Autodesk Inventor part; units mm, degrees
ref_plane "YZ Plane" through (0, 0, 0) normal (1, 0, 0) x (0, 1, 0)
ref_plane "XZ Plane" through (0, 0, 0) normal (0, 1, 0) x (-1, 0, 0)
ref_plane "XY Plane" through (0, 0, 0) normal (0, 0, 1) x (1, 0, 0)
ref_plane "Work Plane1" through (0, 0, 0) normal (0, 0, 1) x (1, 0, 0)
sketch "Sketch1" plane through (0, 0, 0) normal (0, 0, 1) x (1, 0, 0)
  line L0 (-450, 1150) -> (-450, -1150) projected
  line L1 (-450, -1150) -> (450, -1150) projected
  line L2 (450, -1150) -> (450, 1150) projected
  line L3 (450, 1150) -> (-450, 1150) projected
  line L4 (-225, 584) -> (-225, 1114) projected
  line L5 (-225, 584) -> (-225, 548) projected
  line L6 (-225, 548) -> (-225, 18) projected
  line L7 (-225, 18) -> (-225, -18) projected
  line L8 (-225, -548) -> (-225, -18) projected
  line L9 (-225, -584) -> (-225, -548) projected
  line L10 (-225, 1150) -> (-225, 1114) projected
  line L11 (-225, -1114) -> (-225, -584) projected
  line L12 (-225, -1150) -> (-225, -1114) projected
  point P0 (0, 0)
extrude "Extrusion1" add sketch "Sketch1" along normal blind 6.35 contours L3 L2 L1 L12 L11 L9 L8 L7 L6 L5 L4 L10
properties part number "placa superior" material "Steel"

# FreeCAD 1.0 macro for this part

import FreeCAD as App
import Part
import Sketcher

V = App.Vector
Q = App.Units.Quantity


def add_polygon(sketch, points):
    """Adds a closed chain of lines whose ends are joined by coincident constraints."""
    first, n = sketch.GeometryCount, len(points)
    for a, b in zip(points, points[1:] + points[:1]):
        sketch.addGeometry(Part.LineSegment(App.Vector(*a, 0), App.Vector(*b, 0)), False)
    for i in range(n):
        sketch.addConstraint(Sketcher.Constraint("Coincident", first + i, 2, first + (i + 1) % n, 1))

doc = App.newDocument("Part")
body = doc.addObject("PartDesign::Body", "Body")

# Sketch on XY plane
sketch1 = doc.addObject("Sketcher::SketchObject", "Sketch")
body.addObject(sketch1)
sketch1.AttachmentSupport = (doc.XY_Plane, [""])
sketch1.MapMode = "FlatFace"
add_polygon(sketch1, [(450, 1150), (-225, 1150), (-225, -1150), (450, -1150)])  # lines 0-3
sketch1.addConstraint([
    Sketcher.Constraint("Horizontal", 0),
    Sketcher.Constraint("Vertical", 1),
    Sketcher.Constraint("Horizontal", 2),
    Sketcher.Constraint("Vertical", 3),
    Sketcher.Constraint("DistanceX", 0, 2, 0, 1, Q("675 mm")),
    Sketcher.Constraint("DistanceY", 1, 2, 1, 1, Q("2300 mm")),
    Sketcher.Constraint("DistanceX", 0, 2, -1, 1, Q("225 mm")),
    Sketcher.Constraint("DistanceY", -1, 1, 0, 2, Q("1150 mm")),
])
pad1 = doc.addObject("PartDesign::Pad", "Pad")
body.addObject(pad1)
pad1.Profile = sketch1
pad1.Length = 6.35

doc.recompute()
